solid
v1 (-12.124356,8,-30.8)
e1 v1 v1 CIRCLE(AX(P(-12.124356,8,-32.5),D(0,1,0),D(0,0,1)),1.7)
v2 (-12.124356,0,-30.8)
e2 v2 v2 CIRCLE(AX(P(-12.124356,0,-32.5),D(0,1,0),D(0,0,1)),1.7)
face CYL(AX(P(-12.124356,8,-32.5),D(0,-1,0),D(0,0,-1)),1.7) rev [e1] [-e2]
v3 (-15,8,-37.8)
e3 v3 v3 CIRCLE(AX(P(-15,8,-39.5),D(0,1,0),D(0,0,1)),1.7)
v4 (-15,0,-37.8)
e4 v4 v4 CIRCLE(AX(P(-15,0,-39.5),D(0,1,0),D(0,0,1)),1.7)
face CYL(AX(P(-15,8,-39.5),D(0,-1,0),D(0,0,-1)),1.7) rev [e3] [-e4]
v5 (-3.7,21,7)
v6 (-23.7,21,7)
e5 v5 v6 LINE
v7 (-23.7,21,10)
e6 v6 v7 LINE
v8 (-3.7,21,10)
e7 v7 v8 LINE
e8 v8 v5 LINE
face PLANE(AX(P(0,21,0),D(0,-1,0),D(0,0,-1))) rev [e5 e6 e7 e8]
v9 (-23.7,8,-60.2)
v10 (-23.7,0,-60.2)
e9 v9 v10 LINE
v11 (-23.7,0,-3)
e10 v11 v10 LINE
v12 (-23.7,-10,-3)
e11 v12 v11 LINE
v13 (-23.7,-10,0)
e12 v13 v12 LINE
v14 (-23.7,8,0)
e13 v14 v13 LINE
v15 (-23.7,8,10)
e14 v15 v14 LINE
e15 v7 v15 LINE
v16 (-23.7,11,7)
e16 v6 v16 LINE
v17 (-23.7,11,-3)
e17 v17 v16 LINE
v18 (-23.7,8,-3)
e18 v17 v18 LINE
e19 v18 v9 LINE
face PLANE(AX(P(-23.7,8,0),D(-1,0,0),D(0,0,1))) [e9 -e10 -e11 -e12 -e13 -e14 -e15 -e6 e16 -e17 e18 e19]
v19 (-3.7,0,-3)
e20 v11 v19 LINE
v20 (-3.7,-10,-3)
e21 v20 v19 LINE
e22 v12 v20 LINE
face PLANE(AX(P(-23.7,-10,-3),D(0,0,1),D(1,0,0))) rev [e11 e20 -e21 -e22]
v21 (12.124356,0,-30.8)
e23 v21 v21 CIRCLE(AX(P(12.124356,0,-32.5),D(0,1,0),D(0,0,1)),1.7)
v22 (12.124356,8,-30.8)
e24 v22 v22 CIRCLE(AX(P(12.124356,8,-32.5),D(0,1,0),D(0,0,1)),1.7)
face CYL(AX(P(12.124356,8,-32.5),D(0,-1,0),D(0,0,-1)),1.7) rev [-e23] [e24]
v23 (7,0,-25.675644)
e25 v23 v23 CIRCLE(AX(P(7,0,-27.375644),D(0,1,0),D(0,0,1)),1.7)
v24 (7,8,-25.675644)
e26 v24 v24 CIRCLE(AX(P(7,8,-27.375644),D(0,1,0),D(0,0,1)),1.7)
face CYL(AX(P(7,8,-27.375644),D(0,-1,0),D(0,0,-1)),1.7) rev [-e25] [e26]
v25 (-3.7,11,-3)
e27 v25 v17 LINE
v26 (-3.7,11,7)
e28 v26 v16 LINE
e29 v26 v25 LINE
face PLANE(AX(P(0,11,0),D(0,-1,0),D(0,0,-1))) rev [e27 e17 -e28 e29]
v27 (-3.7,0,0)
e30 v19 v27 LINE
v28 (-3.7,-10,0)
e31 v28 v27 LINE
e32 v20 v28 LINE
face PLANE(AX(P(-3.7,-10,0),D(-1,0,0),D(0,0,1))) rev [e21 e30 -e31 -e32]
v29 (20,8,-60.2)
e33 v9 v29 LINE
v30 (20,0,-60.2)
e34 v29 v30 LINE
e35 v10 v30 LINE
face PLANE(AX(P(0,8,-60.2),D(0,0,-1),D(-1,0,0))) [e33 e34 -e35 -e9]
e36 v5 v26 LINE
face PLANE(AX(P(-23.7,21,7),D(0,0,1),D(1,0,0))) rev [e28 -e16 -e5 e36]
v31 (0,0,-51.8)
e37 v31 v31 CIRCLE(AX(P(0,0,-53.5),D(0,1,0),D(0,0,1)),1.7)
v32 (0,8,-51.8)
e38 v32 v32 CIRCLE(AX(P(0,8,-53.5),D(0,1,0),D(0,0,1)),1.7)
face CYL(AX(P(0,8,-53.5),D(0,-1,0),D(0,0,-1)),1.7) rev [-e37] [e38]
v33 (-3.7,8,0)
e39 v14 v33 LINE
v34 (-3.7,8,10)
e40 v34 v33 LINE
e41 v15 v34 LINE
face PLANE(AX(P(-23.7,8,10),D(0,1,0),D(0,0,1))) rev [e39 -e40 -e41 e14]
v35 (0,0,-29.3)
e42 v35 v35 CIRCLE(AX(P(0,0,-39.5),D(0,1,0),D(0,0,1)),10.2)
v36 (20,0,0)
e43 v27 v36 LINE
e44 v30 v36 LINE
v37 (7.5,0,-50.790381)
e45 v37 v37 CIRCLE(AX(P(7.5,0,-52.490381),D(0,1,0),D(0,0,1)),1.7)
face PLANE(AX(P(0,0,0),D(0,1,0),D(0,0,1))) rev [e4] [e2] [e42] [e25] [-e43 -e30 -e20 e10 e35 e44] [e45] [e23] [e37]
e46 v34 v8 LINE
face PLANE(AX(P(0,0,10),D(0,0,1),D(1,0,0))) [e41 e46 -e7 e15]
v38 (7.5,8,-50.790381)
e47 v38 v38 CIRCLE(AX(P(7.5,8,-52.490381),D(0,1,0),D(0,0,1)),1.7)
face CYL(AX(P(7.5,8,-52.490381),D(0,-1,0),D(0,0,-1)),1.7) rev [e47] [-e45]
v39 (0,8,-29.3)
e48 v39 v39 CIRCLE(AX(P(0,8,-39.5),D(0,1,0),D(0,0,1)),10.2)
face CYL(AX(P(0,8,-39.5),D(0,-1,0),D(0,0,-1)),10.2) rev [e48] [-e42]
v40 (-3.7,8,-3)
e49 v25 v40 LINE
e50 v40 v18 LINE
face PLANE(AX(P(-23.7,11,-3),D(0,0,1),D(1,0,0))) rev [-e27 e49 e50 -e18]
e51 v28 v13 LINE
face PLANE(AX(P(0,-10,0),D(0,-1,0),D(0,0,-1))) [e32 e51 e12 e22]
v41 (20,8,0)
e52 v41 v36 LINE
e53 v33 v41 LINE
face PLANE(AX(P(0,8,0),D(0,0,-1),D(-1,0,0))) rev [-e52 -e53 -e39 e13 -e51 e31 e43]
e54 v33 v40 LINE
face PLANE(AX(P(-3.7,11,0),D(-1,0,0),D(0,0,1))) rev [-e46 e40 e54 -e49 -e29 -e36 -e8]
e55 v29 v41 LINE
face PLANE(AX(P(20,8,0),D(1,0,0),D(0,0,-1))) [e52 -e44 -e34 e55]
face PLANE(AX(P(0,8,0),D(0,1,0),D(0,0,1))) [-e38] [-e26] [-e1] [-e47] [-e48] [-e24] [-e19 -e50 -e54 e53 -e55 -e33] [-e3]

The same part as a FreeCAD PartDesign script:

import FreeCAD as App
import Part
import Sketcher

doc = App.newDocument("Part")
body = doc.addObject("PartDesign::Body", "Body")

# Sketch on XZ plane
sketch1 = body.newObject("Sketcher::SketchObject", "Sketch")
sketch1.AttachmentSupport = (doc.getObject("XZ_Plane"), [""])
sketch1.MapMode = "FlatFace"
sketch1.addGeometry([
    Part.LineSegment(App.Vector(-23.7, -60.2, 0), App.Vector(-23.7, 0, 0)),  # 0
    Part.LineSegment(App.Vector(-23.7, 0, 0), App.Vector(20, 0, 0)),  # 1
    Part.LineSegment(App.Vector(20, 0, 0), App.Vector(20, -60.2, 0)),  # 2
    Part.LineSegment(App.Vector(20, -60.2, 0), App.Vector(-23.7, -60.2, 0)),  # 3
    Part.Circle(App.Vector(-12.124356, -32.5, 0), App.Vector(0, 0, 1), 1.7),  # 4
    Part.Circle(App.Vector(-15, -39.5, 0), App.Vector(0, 0, 1), 1.7),  # 5
    Part.Circle(App.Vector(7, -27.375644, 0), App.Vector(0, 0, 1), 1.7),  # 6
    Part.Circle(App.Vector(12.124356, -32.5, 0), App.Vector(0, 0, 1), 1.7),  # 7
    Part.Circle(App.Vector(0, -39.5, 0), App.Vector(0, 0, 1), 10.2),  # 8
    Part.Circle(App.Vector(0, -53.5, 0), App.Vector(0, 0, 1), 1.7),  # 9
    Part.Circle(App.Vector(7.5, -52.490381, 0), App.Vector(0, 0, 1), 1.7),  # 10
], False)
sketch1.addConstraint([
    Sketcher.Constraint("Coincident", 0, 2, 1, 1),
    Sketcher.Constraint("Coincident", 1, 2, 2, 1),
    Sketcher.Constraint("Coincident", 2, 2, 3, 1),
    Sketcher.Constraint("Coincident", 3, 2, 0, 1),
    Sketcher.Constraint("Vertical", 0),
    Sketcher.Constraint("Horizontal", 1),
    Sketcher.Constraint("Vertical", 2),
    Sketcher.Constraint("Horizontal", 3),
    Sketcher.Constraint("Equal", 4, 5),
    Sketcher.Constraint("Equal", 5, 6),
    Sketcher.Constraint("Equal", 6, 7),
    Sketcher.Constraint("Equal", 7, 9),
    Sketcher.Constraint("Equal", 9, 10),
    Sketcher.Constraint("Symmetric", 4, 3, 7, 3, -2),
    Sketcher.Constraint("PointOnObject", 8, 3, -2),
    Sketcher.Constraint("PointOnObject", 9, 3, -2),
    Sketcher.Constraint("PointOnObject", 0, 2, -1),
    Sketcher.Constraint("Horizontal", 5, 3, 8, 3),
    Sketcher.Constraint("Diameter", 4, 3.4),
    Sketcher.Constraint("Diameter", 8, 20.4),
    Sketcher.Constraint("DistanceX", 1, 1, 1, 2, 43.7),
    Sketcher.Constraint("DistanceY", 0, 1, 0, 2, 60.2),
    Sketcher.Constraint("DistanceX", 5, 3, -1, 1, 15.0),
    Sketcher.Constraint("DistanceX", -1, 1, 6, 3, 7.0),
    Sketcher.Constraint("DistanceX", -1, 1, 1, 2, 20.0),
    Sketcher.Constraint("DistanceY", 5, 3, 4, 3, 7.0),
    Sketcher.Constraint("DistanceY", 9, 3, 8, 3, 14.0),
    Sketcher.Constraint("DistanceY", 4, 3, -1, 1, 32.5),
    Sketcher.Constraint("DistanceX", -1, 1, 10, 3, 7.5),
    Sketcher.Constraint("DistanceY", 10, 3, -1, 1, 52.490381),
    Sketcher.Constraint("DistanceX", 4, 3, 7, 3, 24.248711),
    Sketcher.Constraint("DistanceY", 6, 3, -1, 1, 27.375644),
])
pad1 = body.newObject("PartDesign::Pad", "Pad")
pad1.Profile = sketch1
pad1.Length = 8
pad1.Reversed = True

# Sketch on XZ plane
sketch2 = body.newObject("Sketcher::SketchObject", "Sketch001")
sketch2.AttachmentSupport = (doc.getObject("XZ_Plane"), [""])
sketch2.MapMode = "FlatFace"
sketch2.addGeometry([
    Part.LineSegment(App.Vector(-23.7, 0, 0), App.Vector(-23.7, -3, 0)),
    Part.LineSegment(App.Vector(-23.7, -3, 0), App.Vector(-3.7, -3, 0)),
    Part.LineSegment(App.Vector(-3.7, -3, 0), App.Vector(-3.7, 0, 0)),
    Part.LineSegment(App.Vector(-3.7, 0, 0), App.Vector(-23.7, 0, 0)),
], False)
sketch2.addConstraint([
    Sketcher.Constraint("Coincident", 0, 2, 1, 1),
    Sketcher.Constraint("Coincident", 1, 2, 2, 1),
    Sketcher.Constraint("Coincident", 2, 2, 3, 1),
    Sketcher.Constraint("Coincident", 3, 2, 0, 1),
    Sketcher.Constraint("Vertical", 0),
    Sketcher.Constraint("Horizontal", 1),
    Sketcher.Constraint("Vertical", 2),
    Sketcher.Constraint("Horizontal", 3),
    Sketcher.Constraint("PointOnObject", 2, 2, -1),
    Sketcher.Constraint("DistanceX", 1, 1, 1, 2, 20.0),
    Sketcher.Constraint("DistanceY", 0, 2, 0, 1, 3.0),
    Sketcher.Constraint("DistanceX", 0, 2, -1, 1, 23.7),
])
pad2 = body.newObject("PartDesign::Pad", "Pad001")
pad2.Profile = sketch2
pad2.Length = 10

# Sketch on XZ plane
sketch3 = body.newObject("Sketcher::SketchObject", "Sketch002")
sketch3.AttachmentSupport = (doc.getObject("XZ_Plane"), [""])
sketch3.MapMode = "FlatFace"
sketch3.AttachmentOffset = App.Placement(App.Vector(0, 0, -8), App.Rotation())
sketch3.addGeometry([
    Part.LineSegment(App.Vector(-23.7, -3, 0), App.Vector(-23.7, 0, 0)),
    Part.LineSegment(App.Vector(-23.7, 0, 0), App.Vector(-3.7, 0, 0)),
    Part.LineSegment(App.Vector(-3.7, 0, 0), App.Vector(-3.7, -3, 0)),
    Part.LineSegment(App.Vector(-3.7, -3, 0), App.Vector(-23.7, -3, 0)),
], False)
sketch3.addConstraint([
    Sketcher.Constraint("Coincident", 0, 2, 1, 1),
    Sketcher.Constraint("Coincident", 1, 2, 2, 1),
    Sketcher.Constraint("Coincident", 2, 2, 3, 1),
    Sketcher.Constraint("Coincident", 3, 2, 0, 1),
    Sketcher.Constraint("Vertical", 0),
    Sketcher.Constraint("Horizontal", 1),
    Sketcher.Constraint("Vertical", 2),
    Sketcher.Constraint("Horizontal", 3),
    Sketcher.Constraint("PointOnObject", 0, 2, -1),
    Sketcher.Constraint("DistanceX", 1, 1, 1, 2, 20.0),
    Sketcher.Constraint("DistanceY", 0, 1, 0, 2, 3.0),
    Sketcher.Constraint("DistanceX", 0, 2, -1, 1, 23.7),
])
pad3 = body.newObject("PartDesign::Pad", "Pad002")
pad3.Profile = sketch3
pad3.Length = 3
pad3.Reversed = True

# Sketch on XY plane
sketch4 = body.newObject("Sketcher::SketchObject", "Sketch003")
sketch4.AttachmentSupport = (doc.getObject("XY_Plane"), [""])
sketch4.MapMode = "FlatFace"
sketch4.addGeometry([
    Part.LineSegment(App.Vector(-23.7, 11, 0), App.Vector(-23.7, 8, 0)),
    Part.LineSegment(App.Vector(-23.7, 8, 0), App.Vector(-3.7, 8, 0)),
    Part.LineSegment(App.Vector(-3.7, 8, 0), App.Vector(-3.7, 11, 0)),
    Part.LineSegment(App.Vector(-3.7, 11, 0), App.Vector(-23.7, 11, 0)),
], False)
sketch4.addConstraint([
    Sketcher.Constraint("Coincident", 0, 2, 1, 1),
    Sketcher.Constraint("Coincident", 1, 2, 2, 1),
    Sketcher.Constraint("Coincident", 2, 2, 3, 1),
    Sketcher.Constraint("Coincident", 3, 2, 0, 1),
    Sketcher.Constraint("Vertical", 0),
    Sketcher.Constraint("Horizontal", 1),
    Sketcher.Constraint("Vertical", 2),
    Sketcher.Constraint("Horizontal", 3),
    Sketcher.Constraint("DistanceX", 1, 1, 1, 2, 20.0),
    Sketcher.Constraint("DistanceY", 0, 2, 0, 1, 3.0),
    Sketcher.Constraint("DistanceY", -1, 1, 0, 2, 8.0),
    Sketcher.Constraint("DistanceX", 0, 2, -1, 1, 23.7),
])
pad4 = body.newObject("PartDesign::Pad", "Pad003")
pad4.Profile = sketch4
pad4.Length = 10

# Sketch on XZ plane
sketch5 = body.newObject("Sketcher::SketchObject", "Sketch004")
sketch5.AttachmentSupport = (doc.getObject("XZ_Plane"), [""])
sketch5.MapMode = "FlatFace"
sketch5.AttachmentOffset = App.Placement(App.Vector(0, 0, -11), App.Rotation())
sketch5.addGeometry([
    Part.LineSegment(App.Vector(-23.7, 7, 0), App.Vector(-23.7, 10, 0)),
    Part.LineSegment(App.Vector(-23.7, 10, 0), App.Vector(-3.7, 10, 0)),
    Part.LineSegment(App.Vector(-3.7, 10, 0), App.Vector(-3.7, 7, 0)),
    Part.LineSegment(App.Vector(-3.7, 7, 0), App.Vector(-23.7, 7, 0)),
], False)
sketch5.addConstraint([
    Sketcher.Constraint("Coincident", 0, 2, 1, 1),
    Sketcher.Constraint("Coincident", 1, 2, 2, 1),
    Sketcher.Constraint("Coincident", 2, 2, 3, 1),
    Sketcher.Constraint("Coincident", 3, 2, 0, 1),
    Sketcher.Constraint("Vertical", 0),
    Sketcher.Constraint("Horizontal", 1),
    Sketcher.Constraint("Vertical", 2),
    Sketcher.Constraint("Horizontal", 3),
    Sketcher.Constraint("DistanceX", 1, 1, 1, 2, 20.0),
    Sketcher.Constraint("DistanceY", 0, 1, 0, 2, 3.0),
    Sketcher.Constraint("DistanceY", -1, 1, 0, 2, 10.0),
    Sketcher.Constraint("DistanceX", 0, 2, -1, 1, 23.7),
])
pad5 = body.newObject("PartDesign::Pad", "Pad004")
pad5.Profile = sketch5
pad5.Length = 10
pad5.Reversed = True

doc.recompute()
